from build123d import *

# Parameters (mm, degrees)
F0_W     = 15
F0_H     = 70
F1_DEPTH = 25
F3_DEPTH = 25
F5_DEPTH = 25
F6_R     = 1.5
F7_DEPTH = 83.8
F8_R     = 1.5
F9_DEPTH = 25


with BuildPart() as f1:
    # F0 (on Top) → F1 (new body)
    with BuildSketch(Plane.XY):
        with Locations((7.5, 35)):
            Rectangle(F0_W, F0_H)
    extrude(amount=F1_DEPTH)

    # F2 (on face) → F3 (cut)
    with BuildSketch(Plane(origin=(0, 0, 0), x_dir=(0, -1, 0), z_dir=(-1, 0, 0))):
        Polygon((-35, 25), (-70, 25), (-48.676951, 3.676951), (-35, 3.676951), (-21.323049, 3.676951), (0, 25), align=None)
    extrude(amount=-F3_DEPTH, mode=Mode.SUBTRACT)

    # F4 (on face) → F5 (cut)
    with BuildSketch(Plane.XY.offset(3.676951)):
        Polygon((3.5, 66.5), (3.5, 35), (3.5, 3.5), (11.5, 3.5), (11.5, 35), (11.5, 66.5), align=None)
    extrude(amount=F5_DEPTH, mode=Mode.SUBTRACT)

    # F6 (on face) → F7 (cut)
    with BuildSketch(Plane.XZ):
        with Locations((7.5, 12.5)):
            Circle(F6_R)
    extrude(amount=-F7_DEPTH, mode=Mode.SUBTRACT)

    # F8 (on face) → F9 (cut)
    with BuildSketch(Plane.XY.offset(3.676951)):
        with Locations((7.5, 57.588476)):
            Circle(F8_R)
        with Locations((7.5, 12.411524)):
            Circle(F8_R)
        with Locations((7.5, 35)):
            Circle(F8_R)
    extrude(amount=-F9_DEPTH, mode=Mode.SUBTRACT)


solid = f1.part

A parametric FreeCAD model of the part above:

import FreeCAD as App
import Part
import Sketcher


def add_polygon(sketch, points):
    """Adds a closed chain of lines whose ends are joined by coincident constraints."""
    first, n = sketch.GeometryCount, len(points)
    for a, b in zip(points, points[1:] + points[:1]):
        sketch.addGeometry(Part.LineSegment(App.Vector(*a, 0), App.Vector(*b, 0)), False)
    for i in range(n):
        sketch.addConstraint(Sketcher.Constraint("Coincident", first + i, 2, first + (i + 1) % n, 1))

doc = App.newDocument("Part")
body = doc.addObject("PartDesign::Body", "Body")

sketch1 = doc.addObject("Sketcher::SketchObject", "Sketch")
body.addObject(sketch1)
sketch1.AttachmentSupport = (doc.XY_Plane, [""])
sketch1.MapMode = "FlatFace"
add_polygon(sketch1, [(0, 70), (0, 0), (15, 0), (15, 70)])
sketch1.addConstraint([
    Sketcher.Constraint("Vertical", 0),
    Sketcher.Constraint("Horizontal", 1),
    Sketcher.Constraint("Vertical", 2),
    Sketcher.Constraint("Horizontal", 3),
    Sketcher.Constraint("Coincident", 0, 2, -1, 1),
    Sketcher.Constraint("DistanceX", 1, 1, 1, 2, 15.0),
    Sketcher.Constraint("DistanceY", 0, 2, 0, 1, 70.0),
])
pad1 = doc.addObject("PartDesign::Pad", "Pad")
body.addObject(pad1)
pad1.Profile = sketch1
pad1.Length = 25

sketch2 = doc.addObject("Sketcher::SketchObject", "Sketch001")
body.addObject(sketch2)
sketch2.AttachmentSupport = (doc.YZ_Plane, [""])
sketch2.MapMode = "FlatFace"
add_polygon(sketch2, [(70, 25), (49, 4), (21, 4), (0, 25)])
sketch2.addConstraint([
    Sketcher.Constraint("Horizontal", 1),
    Sketcher.Constraint("Horizontal", 3),
    Sketcher.Constraint("PointOnObject", 2, 2, -2),
    Sketcher.Constraint("Perpendicular", 0, 2),
    Sketcher.Constraint("Equal", 0, 2),
    Sketcher.Constraint("DistanceX", 3, 1, 3, 2, 70.0),
    Sketcher.Constraint("DistanceY", -1, 1, 2, 2, 25.0),
    Sketcher.Constraint("DistanceX", 1, 2, 1, 1, 27.353902),
])
pocket1 = doc.addObject("PartDesign::Pocket", "Pocket")
body.addObject(pocket1)
pocket1.Profile = sketch2
pocket1.Length = 25
pocket1.Reversed = True

sketch3 = doc.addObject("Sketcher::SketchObject", "Sketch002")
body.addObject(sketch3)
sketch3.AttachmentSupport = (doc.XY_Plane, [""])
sketch3.MapMode = "FlatFace"
sketch3.AttachmentOffset = App.Placement(App.Vector(0, 0, 3.676951), App.Rotation())
add_polygon(sketch3, [(4, 66), (4, 4), (12, 4), (12, 66)])
sketch3.addConstraint([
    Sketcher.Constraint("Vertical", 0),
    Sketcher.Constraint("Horizontal", 1),
    Sketcher.Constraint("Vertical", 2),
    Sketcher.Constraint("Horizontal", 3),
    Sketcher.Constraint("DistanceX", 1, 1, 1, 2, 8.0),
    Sketcher.Constraint("DistanceY", 0, 2, 0, 1, 63.0),
    Sketcher.Constraint("DistanceX", -1, 1, 0, 2, 3.5),
    Sketcher.Constraint("DistanceY", -1, 1, 0, 2, 3.5),
])
pocket2 = doc.addObject("PartDesign::Pocket", "Pocket001")
body.addObject(pocket2)
pocket2.Profile = sketch3
pocket2.Length = 25
pocket2.Reversed = True

sketch4 = doc.addObject("Sketcher::SketchObject", "Sketch003")
body.addObject(sketch4)
sketch4.AttachmentSupport = (doc.XZ_Plane, [""])
sketch4.MapMode = "FlatFace"
sketch4.addGeometry(Part.Circle(App.Vector(7.5, 12.5, 0), App.Vector(0, 0, 1), 1.5), False)
sketch4.addConstraint([
    Sketcher.Constraint("Diameter", 0, 3.0),
    Sketcher.Constraint("DistanceX", -1, 1, 0, 3, 7.5),
    Sketcher.Constraint("DistanceY", -1, 1, 0, 3, 12.5),
])
pocket3 = doc.addObject("PartDesign::Pocket", "Pocket002")
body.addObject(pocket3)
pocket3.Profile = sketch4
pocket3.Length = 83.8

sketch5 = doc.addObject("Sketcher::SketchObject", "Sketch004")
body.addObject(sketch5)
sketch5.AttachmentSupport = (doc.XY_Plane, [""])
sketch5.MapMode = "FlatFace"
sketch5.AttachmentOffset = App.Placement(App.Vector(0, 0, 3.676951), App.Rotation())
sketch5.addGeometry([
    Part.Circle(App.Vector(7.5, 57.6, 0), App.Vector(0, 0, 1), 1.5),
    Part.Circle(App.Vector(7.5, 12.4, 0), App.Vector(0, 0, 1), 1.5),
    Part.Circle(App.Vector(7.5, 35, 0), App.Vector(0, 0, 1), 1.5),
], False)
sketch5.addConstraint([
    Sketcher.Constraint("Equal", 0, 1),
    Sketcher.Constraint("Equal", 1, 2),
    Sketcher.Constraint("Vertical", 0, 3, 1, 3),
    Sketcher.Constraint("Vertical", 1, 3, 2, 3),
    Sketcher.Constraint("Diameter", 0, 3.0),
    Sketcher.Constraint("DistanceY", -1, 1, 2, 3, 35.0),
    Sketcher.Constraint("DistanceX", -1, 1, 0, 3, 7.5),
    Sketcher.Constraint("DistanceY", -1, 1, 0, 3, 57.588476),
    Sketcher.Constraint("DistanceY", -1, 1, 1, 3, 12.411524),
])
pocket4 = doc.addObject("PartDesign::Pocket", "Pocket003")
body.addObject(pocket4)
pocket4.Profile = sketch5
pocket4.Length = 25

doc.recompute()
